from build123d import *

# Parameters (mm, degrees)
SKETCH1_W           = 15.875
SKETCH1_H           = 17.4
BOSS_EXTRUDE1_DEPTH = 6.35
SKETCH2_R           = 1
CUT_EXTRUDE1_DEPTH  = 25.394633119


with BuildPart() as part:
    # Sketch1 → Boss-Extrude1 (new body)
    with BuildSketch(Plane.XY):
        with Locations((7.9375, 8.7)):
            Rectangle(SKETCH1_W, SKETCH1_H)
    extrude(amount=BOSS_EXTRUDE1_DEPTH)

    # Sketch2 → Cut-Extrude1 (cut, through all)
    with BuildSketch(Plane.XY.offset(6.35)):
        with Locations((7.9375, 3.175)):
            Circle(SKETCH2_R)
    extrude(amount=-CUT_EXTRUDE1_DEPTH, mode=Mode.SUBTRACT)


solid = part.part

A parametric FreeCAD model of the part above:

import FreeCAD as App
import Part
import Sketcher
from FreeCAD import Vector
Q = App.Units.Quantity

doc = App.newDocument("Part")
params = doc.addObject("Spreadsheet::Sheet", "Params")
for row, (alias, value) in enumerate([
    ("sketch1_height", "17.4 mm"),
    ("pad1_length", "6.35 mm"),
    ("sketch2_diameter", "2 mm"),
], start=1):
    params.set(f"A{row}", alias)
    params.set(f"B{row}", "=" + value)
    params.setAlias(f"B{row}", alias)

body = doc.addObject("PartDesign::Body", "Body")

# Sketch on XY plane
sketch1 = doc.addObject("Sketcher::SketchObject", "Sketch")
body.addObject(sketch1)
sketch1.AttachmentSupport = (doc.XY_Plane, [""])
sketch1.MapMode = "FlatFace"
sketch1.addGeometry([
    Part.LineSegment(Vector(0, 17, 0), Vector(0, 0, 0)),
    Part.LineSegment(Vector(0, 0, 0), Vector(16, 0, 0)),
    Part.LineSegment(Vector(16, 0, 0), Vector(16, 17, 0)),
    Part.LineSegment(Vector(16, 17, 0), Vector(0, 17, 0)),
], False)
sketch1.addConstraint([
    Sketcher.Constraint("Coincident", 0, 2, 1, 1),
    Sketcher.Constraint("Coincident", 1, 2, 2, 1),
    Sketcher.Constraint("Coincident", 2, 2, 3, 1),
    Sketcher.Constraint("Coincident", 3, 2, 0, 1),
    Sketcher.Constraint("Vertical", 0),
    Sketcher.Constraint("Horizontal", 1),
    Sketcher.Constraint("Vertical", 2),
    Sketcher.Constraint("Horizontal", 3),
    Sketcher.Constraint("Coincident", 0, 2, -1, 1),
    Sketcher.Constraint("DistanceY", 0, 2, 0, 1, Q("17.4 mm")),
    Sketcher.Constraint("DistanceX", 1, 1, 1, 2, Q("15.875 mm")),
])
sketch1.setExpression("Constraints[9]", "Params.sketch1_height")
pad1 = doc.addObject("PartDesign::Pad", "Pad")
body.addObject(pad1)
pad1.Profile = sketch1
pad1.setExpression("Length", "Params.pad1_length")

# Sketch on XY plane
sketch2 = doc.addObject("Sketcher::SketchObject", "Sketch001")
body.addObject(sketch2)
sketch2.AttachmentSupport = (doc.XY_Plane, [""])
sketch2.MapMode = "FlatFace"
sketch2.AttachmentOffset = App.Placement(Vector(0, 0, 6.35), App.Rotation())
sketch2.addGeometry(Part.Circle(Vector(7.9, 3.2, 0), Vector(0, 0, 1), 1), False)
sketch2.addConstraint([
    Sketcher.Constraint("Diameter", 0, Q("2 mm")),
    Sketcher.Constraint("DistanceY", -1, 1, 0, 3, Q("3.175 mm")),
    Sketcher.Constraint("DistanceX", -1, 1, 0, 3, Q("7.9375 mm")),
])
sketch2.setExpression("Constraints[0]", "Params.sketch2_diameter")
pocket1 = doc.addObject("PartDesign::Pocket", "Pocket")
body.addObject(pocket1)
pocket1.Profile = sketch2
pocket1.Type = "ThroughAll"

doc.recompute()
